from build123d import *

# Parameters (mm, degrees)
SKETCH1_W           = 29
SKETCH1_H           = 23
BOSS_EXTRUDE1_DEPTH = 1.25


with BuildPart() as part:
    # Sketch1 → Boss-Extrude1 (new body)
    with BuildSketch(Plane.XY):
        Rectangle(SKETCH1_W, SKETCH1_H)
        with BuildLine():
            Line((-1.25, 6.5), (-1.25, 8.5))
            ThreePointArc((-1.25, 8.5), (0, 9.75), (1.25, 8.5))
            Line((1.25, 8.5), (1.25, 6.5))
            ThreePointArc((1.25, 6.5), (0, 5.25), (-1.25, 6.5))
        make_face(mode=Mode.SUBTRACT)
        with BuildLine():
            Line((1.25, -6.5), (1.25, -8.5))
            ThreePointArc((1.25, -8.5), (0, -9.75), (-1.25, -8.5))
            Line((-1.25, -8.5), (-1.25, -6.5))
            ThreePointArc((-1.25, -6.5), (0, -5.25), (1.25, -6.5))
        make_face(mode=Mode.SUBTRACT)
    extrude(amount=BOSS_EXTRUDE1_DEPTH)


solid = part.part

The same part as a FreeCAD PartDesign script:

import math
import FreeCAD as App
import Part
import Sketcher


def add_polygon(sketch, points):
    """Adds a closed chain of lines whose ends are joined by coincident constraints."""
    first, n = sketch.GeometryCount, len(points)
    for a, b in zip(points, points[1:] + points[:1]):
        sketch.addGeometry(Part.LineSegment(App.Vector(*a, 0), App.Vector(*b, 0)), False)
    for i in range(n):
        sketch.addConstraint(Sketcher.Constraint("Coincident", first + i, 2, first + (i + 1) % n, 1))

doc = App.newDocument("Part")
body = doc.addObject("PartDesign::Body", "Body")

# Sketch on XY plane
sketch1 = body.newObject("Sketcher::SketchObject", "Sketch")
sketch1.AttachmentSupport = (doc.getObject("XY_Plane"), [""])
sketch1.MapMode = "FlatFace"
add_polygon(sketch1, [(-14.5, 11.5), (-14.5, -11.5), (14.5, -11.5), (14.5, 11.5)])  # lines 0-3
sketch1.addGeometry(Part.ArcOfCircle(Part.Circle(App.Vector(0, -6.5, 0), App.Vector(0, 0, 1), 1.2), math.radians(0), math.radians(180)), False)  # 4
sketch1.addGeometry(Part.LineSegment(App.Vector(1.2, -6.5, 0), App.Vector(1.2, -8.5, 0)), False)  # 5
sketch1.addGeometry(Part.ArcOfCircle(Part.Circle(App.Vector(0, -8.5, 0), App.Vector(0, 0, 1), 1.2), math.radians(180), math.radians(360)), False)  # 6
sketch1.addGeometry(Part.LineSegment(App.Vector(-1.2, -8.5, 0), App.Vector(-1.2, -6.5, 0)), False)  # 7
sketch1.addGeometry(Part.ArcOfCircle(Part.Circle(App.Vector(0, 6.5, 0), App.Vector(0, 0, 1), 1.2), math.radians(180), math.radians(360)), False)  # 8
sketch1.addGeometry(Part.LineSegment(App.Vector(-1.2, 6.5, 0), App.Vector(-1.2, 8.5, 0)), False)  # 9
sketch1.addGeometry(Part.ArcOfCircle(Part.Circle(App.Vector(0, 8.5, 0), App.Vector(0, 0, 1), 1.2), math.radians(0), math.radians(180)), False)  # 10
sketch1.addGeometry(Part.LineSegment(App.Vector(1.2, 8.5, 0), App.Vector(1.2, 6.5, 0)), False)  # 11
sketch1.addConstraint([
    Sketcher.Constraint("Tangent", 4, 1, 5, 1),
    Sketcher.Constraint("Tangent", 5, 2, 6, 2),
    Sketcher.Constraint("Tangent", 6, 1, 7, 1),
    Sketcher.Constraint("Tangent", 7, 2, 4, 2),
    Sketcher.Constraint("Tangent", 8, 1, 9, 1),
    Sketcher.Constraint("Tangent", 9, 2, 10, 2),
    Sketcher.Constraint("Tangent", 10, 1, 11, 1),
    Sketcher.Constraint("Tangent", 11, 2, 8, 2),
    Sketcher.Constraint("Vertical", 0),
    Sketcher.Constraint("Horizontal", 1),
    Sketcher.Constraint("Vertical", 2),
    Sketcher.Constraint("Horizontal", 3),
    Sketcher.Constraint("Vertical", 5),
    Sketcher.Constraint("Vertical", 7),
    Sketcher.Constraint("Vertical", 9),
    Sketcher.Constraint("Vertical", 11),
    Sketcher.Constraint("Equal", 6, 8),
    Sketcher.Constraint("Symmetric", 4, 3, 8, 3, -1, 1),
    Sketcher.Constraint("Symmetric", 0, 2, 2, 2, -1, 1),
    Sketcher.Constraint("Symmetric", 6, 3, 10, 3, -1),
    Sketcher.Constraint("DistanceX", 1, 1, 1, 2, 29.0),
    Sketcher.Constraint("DistanceY", 0, 2, 0, 1, 23.0),
    Sketcher.Constraint("DistanceY", 5, 2, 5, 1, 2.0),
    Sketcher.Constraint("Radius", 4, 1.25),
    Sketcher.Constraint("DistanceY", 4, 3, 8, 3, 13.0),
])
pad1 = body.newObject("PartDesign::Pad", "Pad")
pad1.Profile = sketch1
pad1.Length = 1.25

doc.recompute()
